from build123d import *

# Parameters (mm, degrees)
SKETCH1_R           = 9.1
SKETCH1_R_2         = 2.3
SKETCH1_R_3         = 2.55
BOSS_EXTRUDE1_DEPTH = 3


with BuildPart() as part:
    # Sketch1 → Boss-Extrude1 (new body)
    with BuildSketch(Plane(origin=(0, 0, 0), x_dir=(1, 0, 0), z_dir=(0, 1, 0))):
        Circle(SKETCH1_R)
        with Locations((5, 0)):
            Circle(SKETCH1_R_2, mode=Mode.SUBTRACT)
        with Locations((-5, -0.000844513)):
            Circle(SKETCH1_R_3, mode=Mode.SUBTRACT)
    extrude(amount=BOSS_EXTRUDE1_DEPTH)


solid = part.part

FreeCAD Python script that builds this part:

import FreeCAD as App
import Part
import Sketcher

V = App.Vector
Q = App.Units.Quantity

doc = App.newDocument("Part")
body = doc.addObject("PartDesign::Body", "Body")

# Sketch on XZ plane
sketch1 = doc.addObject("Sketcher::SketchObject", "Sketch")
body.addObject(sketch1)
sketch1.AttachmentSupport = (doc.XZ_Plane, [""])
sketch1.MapMode = "FlatFace"
sketch1.addGeometry(Part.Circle(V(0, 0, 0), V(0, 0, 1), 9.1), False)
sketch1.addGeometry(Part.Circle(V(-5, 0, 0), V(0, 0, 1), 2.5), False)
sketch1.addGeometry(Part.Circle(V(5, 0, 0), V(0, 0, 1), 2.3), False)
sketch1.addConstraint(Sketcher.Constraint("Coincident", 0, 3, -1, 1))
sketch1.addConstraint(Sketcher.Constraint("PointOnObject", 2, 3, -1))
sketch1.addConstraint(Sketcher.Constraint("Diameter", 0, Q("18.2 mm")))
sketch1.addConstraint(Sketcher.Constraint("Diameter", 1, Q("5.1 mm")))
sketch1.addConstraint(Sketcher.Constraint("Diameter", 2, Q("4.6 mm")))
sketch1.addConstraint(Sketcher.Constraint("DistanceX", 1, 3, -1, 1, Q("5 mm")))
sketch1.addConstraint(Sketcher.Constraint("DistanceX", -1, 1, 2, 3, Q("5 mm")))
sketch1.addConstraint(Sketcher.Constraint("DistanceY", -1, 1, 1, 3, Q("0.000845 mm")))
pad1 = doc.addObject("PartDesign::Pad", "Pad")
body.addObject(pad1)
pad1.Profile = sketch1
pad1.Length = 3
pad1.Reversed = True

doc.recompute()
